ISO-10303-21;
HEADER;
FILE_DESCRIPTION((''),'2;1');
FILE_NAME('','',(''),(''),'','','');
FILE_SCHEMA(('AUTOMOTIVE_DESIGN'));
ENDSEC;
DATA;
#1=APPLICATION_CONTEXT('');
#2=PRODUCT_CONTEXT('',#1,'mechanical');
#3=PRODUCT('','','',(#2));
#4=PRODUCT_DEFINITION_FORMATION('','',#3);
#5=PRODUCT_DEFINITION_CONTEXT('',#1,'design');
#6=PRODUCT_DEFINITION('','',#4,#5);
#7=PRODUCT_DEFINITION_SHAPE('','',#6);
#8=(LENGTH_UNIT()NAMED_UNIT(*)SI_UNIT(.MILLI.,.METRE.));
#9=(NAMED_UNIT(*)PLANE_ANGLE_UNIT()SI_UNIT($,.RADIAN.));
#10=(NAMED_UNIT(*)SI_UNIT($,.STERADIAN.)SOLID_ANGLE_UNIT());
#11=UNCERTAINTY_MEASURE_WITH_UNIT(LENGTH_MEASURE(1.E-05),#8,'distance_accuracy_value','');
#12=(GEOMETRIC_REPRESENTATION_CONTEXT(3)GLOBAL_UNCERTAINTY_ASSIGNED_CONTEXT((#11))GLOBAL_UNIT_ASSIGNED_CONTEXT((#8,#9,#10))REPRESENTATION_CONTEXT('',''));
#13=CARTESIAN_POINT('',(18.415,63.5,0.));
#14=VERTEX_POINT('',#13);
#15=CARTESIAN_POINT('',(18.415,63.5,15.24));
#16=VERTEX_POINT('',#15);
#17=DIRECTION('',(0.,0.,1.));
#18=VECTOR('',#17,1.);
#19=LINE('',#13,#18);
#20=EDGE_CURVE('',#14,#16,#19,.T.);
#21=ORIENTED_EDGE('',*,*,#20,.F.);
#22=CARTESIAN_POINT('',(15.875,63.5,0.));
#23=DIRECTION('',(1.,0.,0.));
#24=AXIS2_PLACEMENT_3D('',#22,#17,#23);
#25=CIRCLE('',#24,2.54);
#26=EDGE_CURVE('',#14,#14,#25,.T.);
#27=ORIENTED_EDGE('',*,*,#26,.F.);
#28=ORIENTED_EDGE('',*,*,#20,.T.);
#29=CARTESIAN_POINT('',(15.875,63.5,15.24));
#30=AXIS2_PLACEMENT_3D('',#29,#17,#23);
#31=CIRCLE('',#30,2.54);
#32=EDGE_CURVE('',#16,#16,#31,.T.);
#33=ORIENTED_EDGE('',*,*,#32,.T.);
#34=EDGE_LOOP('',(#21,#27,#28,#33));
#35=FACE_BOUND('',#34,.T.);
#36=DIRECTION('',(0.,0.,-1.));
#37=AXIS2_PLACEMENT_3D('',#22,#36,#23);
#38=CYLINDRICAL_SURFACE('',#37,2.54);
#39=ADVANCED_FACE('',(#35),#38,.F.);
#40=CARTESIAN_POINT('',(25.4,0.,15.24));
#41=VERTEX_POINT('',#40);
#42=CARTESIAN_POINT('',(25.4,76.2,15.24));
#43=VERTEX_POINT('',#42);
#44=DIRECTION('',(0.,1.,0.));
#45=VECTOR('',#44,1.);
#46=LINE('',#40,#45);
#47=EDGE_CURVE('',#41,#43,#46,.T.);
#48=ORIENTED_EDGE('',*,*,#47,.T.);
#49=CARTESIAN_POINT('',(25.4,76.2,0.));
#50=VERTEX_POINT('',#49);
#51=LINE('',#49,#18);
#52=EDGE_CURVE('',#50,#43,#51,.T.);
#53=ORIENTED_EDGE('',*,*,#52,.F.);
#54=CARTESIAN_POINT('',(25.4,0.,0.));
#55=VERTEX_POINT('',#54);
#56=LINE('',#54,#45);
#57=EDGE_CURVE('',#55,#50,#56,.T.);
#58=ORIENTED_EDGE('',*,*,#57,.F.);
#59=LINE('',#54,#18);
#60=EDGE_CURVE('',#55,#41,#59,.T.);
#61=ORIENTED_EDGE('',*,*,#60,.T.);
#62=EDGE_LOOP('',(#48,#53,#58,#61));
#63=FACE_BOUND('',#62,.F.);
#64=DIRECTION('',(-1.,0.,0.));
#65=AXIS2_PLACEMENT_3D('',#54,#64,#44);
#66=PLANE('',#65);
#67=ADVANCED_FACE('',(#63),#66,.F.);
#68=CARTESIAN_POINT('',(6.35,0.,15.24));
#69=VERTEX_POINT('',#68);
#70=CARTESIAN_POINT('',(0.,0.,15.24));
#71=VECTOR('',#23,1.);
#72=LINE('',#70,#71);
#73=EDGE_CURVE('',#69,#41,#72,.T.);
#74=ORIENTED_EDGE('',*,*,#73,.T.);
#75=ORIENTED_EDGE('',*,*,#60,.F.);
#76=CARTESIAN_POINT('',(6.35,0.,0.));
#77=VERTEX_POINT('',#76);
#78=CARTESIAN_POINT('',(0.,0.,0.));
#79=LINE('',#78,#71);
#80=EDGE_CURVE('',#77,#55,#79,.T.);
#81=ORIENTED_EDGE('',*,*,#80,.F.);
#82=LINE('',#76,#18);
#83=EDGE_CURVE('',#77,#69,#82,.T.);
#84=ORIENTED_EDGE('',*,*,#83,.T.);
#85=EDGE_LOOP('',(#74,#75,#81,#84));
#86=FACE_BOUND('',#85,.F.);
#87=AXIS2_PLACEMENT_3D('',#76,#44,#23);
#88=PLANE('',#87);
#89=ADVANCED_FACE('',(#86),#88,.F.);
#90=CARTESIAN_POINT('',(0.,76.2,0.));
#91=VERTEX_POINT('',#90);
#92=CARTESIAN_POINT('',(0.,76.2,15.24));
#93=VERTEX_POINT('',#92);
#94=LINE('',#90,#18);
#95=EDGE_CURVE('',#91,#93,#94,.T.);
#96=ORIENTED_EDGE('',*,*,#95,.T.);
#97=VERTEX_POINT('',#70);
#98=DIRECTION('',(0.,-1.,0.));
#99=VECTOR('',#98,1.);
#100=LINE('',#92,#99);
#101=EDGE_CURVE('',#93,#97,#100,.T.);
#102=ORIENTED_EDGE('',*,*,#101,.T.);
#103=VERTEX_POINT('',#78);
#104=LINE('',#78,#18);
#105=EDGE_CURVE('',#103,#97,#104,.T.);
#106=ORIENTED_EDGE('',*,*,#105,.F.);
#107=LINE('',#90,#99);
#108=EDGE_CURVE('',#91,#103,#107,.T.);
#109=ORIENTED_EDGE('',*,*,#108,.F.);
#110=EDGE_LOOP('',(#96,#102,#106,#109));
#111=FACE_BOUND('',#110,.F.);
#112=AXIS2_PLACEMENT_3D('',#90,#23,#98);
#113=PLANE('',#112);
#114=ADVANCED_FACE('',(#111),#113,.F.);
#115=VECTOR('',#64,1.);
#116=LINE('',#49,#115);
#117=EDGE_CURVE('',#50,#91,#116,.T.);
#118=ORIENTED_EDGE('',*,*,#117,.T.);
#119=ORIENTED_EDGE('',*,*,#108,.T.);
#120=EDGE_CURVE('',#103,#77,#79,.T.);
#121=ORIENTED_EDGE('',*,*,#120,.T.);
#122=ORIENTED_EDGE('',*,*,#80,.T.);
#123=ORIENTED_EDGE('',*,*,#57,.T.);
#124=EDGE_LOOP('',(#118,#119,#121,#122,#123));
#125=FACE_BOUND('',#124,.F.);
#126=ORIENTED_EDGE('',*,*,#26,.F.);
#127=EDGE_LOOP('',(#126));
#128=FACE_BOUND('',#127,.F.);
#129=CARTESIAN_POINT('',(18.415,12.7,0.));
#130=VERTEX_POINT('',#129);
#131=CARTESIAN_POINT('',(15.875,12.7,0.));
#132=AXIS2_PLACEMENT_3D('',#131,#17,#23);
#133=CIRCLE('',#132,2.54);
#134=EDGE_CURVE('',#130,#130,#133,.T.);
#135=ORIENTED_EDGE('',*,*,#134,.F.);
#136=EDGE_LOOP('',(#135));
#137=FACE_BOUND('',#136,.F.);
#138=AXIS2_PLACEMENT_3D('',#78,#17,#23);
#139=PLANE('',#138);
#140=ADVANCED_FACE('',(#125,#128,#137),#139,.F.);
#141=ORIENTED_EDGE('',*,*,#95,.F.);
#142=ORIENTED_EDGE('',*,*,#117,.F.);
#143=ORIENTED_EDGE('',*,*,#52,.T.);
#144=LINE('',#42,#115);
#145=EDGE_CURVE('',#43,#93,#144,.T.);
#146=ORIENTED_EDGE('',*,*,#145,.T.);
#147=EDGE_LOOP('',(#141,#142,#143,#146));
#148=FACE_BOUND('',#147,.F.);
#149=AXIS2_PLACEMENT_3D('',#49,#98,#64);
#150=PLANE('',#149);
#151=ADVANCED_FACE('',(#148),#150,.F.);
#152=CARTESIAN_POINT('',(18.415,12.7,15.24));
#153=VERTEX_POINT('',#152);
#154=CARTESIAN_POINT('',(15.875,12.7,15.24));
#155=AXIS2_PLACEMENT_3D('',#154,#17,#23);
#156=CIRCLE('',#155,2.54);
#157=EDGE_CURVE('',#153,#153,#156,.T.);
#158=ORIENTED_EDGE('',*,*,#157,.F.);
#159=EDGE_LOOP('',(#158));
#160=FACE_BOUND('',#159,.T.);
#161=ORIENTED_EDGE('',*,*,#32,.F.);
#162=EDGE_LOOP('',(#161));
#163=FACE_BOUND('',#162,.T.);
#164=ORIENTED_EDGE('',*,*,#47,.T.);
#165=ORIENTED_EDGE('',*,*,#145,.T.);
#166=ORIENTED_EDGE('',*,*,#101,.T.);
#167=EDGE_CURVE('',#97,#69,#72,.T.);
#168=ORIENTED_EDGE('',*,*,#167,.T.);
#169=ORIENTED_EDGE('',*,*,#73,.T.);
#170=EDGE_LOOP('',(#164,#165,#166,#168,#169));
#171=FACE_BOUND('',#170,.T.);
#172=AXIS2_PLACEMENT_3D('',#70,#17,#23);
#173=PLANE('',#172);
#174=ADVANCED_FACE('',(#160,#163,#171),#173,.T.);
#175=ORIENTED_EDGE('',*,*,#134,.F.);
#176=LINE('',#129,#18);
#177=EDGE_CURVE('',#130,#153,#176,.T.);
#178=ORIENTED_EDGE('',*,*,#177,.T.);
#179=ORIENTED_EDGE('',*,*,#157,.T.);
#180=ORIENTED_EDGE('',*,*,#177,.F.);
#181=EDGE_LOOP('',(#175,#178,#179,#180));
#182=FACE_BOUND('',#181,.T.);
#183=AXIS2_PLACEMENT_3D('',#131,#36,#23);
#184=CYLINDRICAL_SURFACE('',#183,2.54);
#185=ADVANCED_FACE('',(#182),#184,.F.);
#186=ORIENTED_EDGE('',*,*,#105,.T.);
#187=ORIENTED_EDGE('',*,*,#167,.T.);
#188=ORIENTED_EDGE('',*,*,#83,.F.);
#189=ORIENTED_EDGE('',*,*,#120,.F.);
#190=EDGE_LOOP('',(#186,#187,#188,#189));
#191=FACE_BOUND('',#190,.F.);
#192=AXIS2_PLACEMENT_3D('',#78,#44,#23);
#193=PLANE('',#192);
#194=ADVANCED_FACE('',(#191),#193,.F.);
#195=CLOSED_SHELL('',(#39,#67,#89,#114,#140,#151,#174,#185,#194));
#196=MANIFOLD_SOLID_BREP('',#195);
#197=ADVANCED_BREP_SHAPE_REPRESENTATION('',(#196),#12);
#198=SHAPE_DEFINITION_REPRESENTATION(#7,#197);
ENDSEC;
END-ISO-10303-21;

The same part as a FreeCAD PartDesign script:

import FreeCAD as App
import Part
import Sketcher
from FreeCAD import Vector
Q = App.Units.Quantity

doc = App.newDocument("Part")
params = doc.addObject("Spreadsheet::Sheet", "Params")
for row, (alias, value) in enumerate([
    ("sketch1_diameter", "0.2 in"),
    ("sketch1_width", "1 in"),
    ("sketch1_height", "3 in"),
    ("pad1_length", "0.6 in"),
], start=1):
    params.set(f"A{row}", alias)
    params.set(f"B{row}", "=" + value)
    params.setAlias(f"B{row}", alias)

body = doc.addObject("PartDesign::Body", "Body")

# Sketch on XY plane
sketch1 = body.newObject("Sketcher::SketchObject", "Sketch")
sketch1.AttachmentSupport = (doc.getObject("XY_Plane"), [""])
sketch1.MapMode = "FlatFace"
sketch1.addGeometry([
    Part.LineSegment(Vector(0, 76.2, 0), Vector(0, 0, 0)),  # 0
    Part.LineSegment(Vector(0, 0, 0), Vector(25.4, 0, 0)),  # 1
    Part.LineSegment(Vector(25.4, 0, 0), Vector(25.4, 76.2, 0)),  # 2
    Part.LineSegment(Vector(25.4, 76.2, 0), Vector(0, 76.2, 0)),  # 3
    Part.Circle(Vector(15.9, 12.7, 0), Vector(0, 0, 1), 2.5),  # 4
    Part.Circle(Vector(15.9, 63.5, 0), Vector(0, 0, 1), 2.5),  # 5
], False)
sketch1.addConstraint([
    Sketcher.Constraint("Coincident", 0, 2, 1, 1),
    Sketcher.Constraint("Coincident", 1, 2, 2, 1),
    Sketcher.Constraint("Coincident", 2, 2, 3, 1),
    Sketcher.Constraint("Coincident", 3, 2, 0, 1),
    Sketcher.Constraint("Vertical", 0),
    Sketcher.Constraint("Horizontal", 1),
    Sketcher.Constraint("Vertical", 2),
    Sketcher.Constraint("Horizontal", 3),
    Sketcher.Constraint("Coincident", 0, 2, -1, 1),
    Sketcher.Constraint("Equal", 4, 5),
    Sketcher.Constraint("Vertical", 4, 3, 5, 3),
    Sketcher.Constraint("Diameter", 4, Q("0.2 in")),
    Sketcher.Constraint("DistanceX", 1, 1, 1, 2, Q("1 in")),
    Sketcher.Constraint("DistanceY", 0, 2, 0, 1, Q("3 in")),
    Sketcher.Constraint("DistanceY", -1, 1, 4, 3, Q("0.5 in")),
    Sketcher.Constraint("DistanceY", 5, 3, 2, 2, Q("0.5 in")),
    Sketcher.Constraint("DistanceX", -1, 1, 4, 3, Q("0.625 in")),
])
sketch1.setExpression("Constraints[11]", "Params.sketch1_diameter")
sketch1.setExpression("Constraints[12]", "Params.sketch1_width")
sketch1.setExpression("Constraints[13]", "Params.sketch1_height")
pad1 = body.newObject("PartDesign::Pad", "Pad")
pad1.Profile = sketch1
pad1.setExpression("Length", "Params.pad1_length")

doc.recompute()
